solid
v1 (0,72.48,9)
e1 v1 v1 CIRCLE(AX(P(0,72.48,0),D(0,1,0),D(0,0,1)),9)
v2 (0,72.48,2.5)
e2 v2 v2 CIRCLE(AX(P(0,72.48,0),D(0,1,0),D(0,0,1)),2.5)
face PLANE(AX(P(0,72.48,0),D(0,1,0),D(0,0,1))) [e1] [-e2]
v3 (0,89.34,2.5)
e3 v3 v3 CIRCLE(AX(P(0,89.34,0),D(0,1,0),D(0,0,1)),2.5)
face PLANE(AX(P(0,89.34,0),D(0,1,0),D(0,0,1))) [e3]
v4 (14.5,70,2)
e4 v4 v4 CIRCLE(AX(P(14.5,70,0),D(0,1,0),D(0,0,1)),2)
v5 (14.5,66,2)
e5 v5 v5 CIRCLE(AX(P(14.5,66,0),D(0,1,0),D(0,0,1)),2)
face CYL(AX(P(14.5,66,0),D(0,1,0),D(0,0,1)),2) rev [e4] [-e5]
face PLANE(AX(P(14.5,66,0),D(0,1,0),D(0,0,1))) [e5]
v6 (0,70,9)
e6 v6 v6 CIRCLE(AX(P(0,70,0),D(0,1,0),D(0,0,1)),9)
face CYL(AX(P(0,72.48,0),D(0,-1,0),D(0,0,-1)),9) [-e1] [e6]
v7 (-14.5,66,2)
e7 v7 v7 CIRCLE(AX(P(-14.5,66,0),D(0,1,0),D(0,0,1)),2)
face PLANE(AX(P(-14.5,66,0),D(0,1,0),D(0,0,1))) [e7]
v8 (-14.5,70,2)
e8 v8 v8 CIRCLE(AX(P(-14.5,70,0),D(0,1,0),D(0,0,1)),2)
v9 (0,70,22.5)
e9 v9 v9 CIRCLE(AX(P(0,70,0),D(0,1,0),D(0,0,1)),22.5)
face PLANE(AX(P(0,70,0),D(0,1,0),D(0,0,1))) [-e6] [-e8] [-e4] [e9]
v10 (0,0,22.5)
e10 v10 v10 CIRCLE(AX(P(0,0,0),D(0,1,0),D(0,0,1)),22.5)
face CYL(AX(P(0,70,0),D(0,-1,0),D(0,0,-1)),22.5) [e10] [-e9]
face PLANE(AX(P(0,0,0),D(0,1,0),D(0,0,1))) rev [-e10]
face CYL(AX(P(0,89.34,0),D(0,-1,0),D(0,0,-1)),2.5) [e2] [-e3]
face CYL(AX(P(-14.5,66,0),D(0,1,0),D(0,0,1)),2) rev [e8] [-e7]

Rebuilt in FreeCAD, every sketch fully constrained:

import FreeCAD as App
import Part
import Sketcher

V = App.Vector

doc = App.newDocument("Part")
params = doc.addObject("Spreadsheet::Sheet", "Params")
for row, (alias, value) in enumerate([
    ("sketch1_diameter", "45 mm"),
    ("pad1_length", "70 mm"),
    ("sketch2_diameter", "18 mm"),
    ("pad2_length", "2.48 mm"),
    ("sketch3_diameter", "5 mm"),
    ("pad3_length", "16.86 mm"),
    ("sketch4_diameter", "4 mm"),
    ("pocket1_length", "4 mm"),
], start=1):
    params.set(f"A{row}", alias)
    params.set(f"B{row}", "=" + value)
    params.setAlias(f"B{row}", alias)

body = doc.addObject("PartDesign::Body", "Body")

sketch1 = body.newObject("Sketcher::SketchObject", "Sketch")
sketch1.AttachmentSupport = (doc.getObject("XZ_Plane"), [""])
sketch1.MapMode = "FlatFace"
sketch1.addGeometry(Part.Circle(V(0, 0, 0), V(0, 0, 1), 22), False)
sketch1.addConstraint([
    Sketcher.Constraint("Coincident", 0, 3, -1, 1),
    Sketcher.Constraint("Diameter", 0, 45.0),
])
sketch1.setExpression("Constraints[1]", "Params.sketch1_diameter")
pad1 = body.newObject("PartDesign::Pad", "Pad")
pad1.Profile = sketch1
pad1.setExpression("Length", "Params.pad1_length")
pad1.Reversed = True

sketch2 = body.newObject("Sketcher::SketchObject", "Sketch001")
sketch2.AttachmentSupport = (doc.getObject("XZ_Plane"), [""])
sketch2.MapMode = "FlatFace"
sketch2.AttachmentOffset = App.Placement(V(0, 0, -70), App.Rotation())
sketch2.addGeometry(Part.Circle(V(0, 0, 0), V(0, 0, 1), 9), False)
sketch2.addConstraint([
    Sketcher.Constraint("Coincident", 0, 3, -1, 1),
    Sketcher.Constraint("Diameter", 0, 18.0),
])
sketch2.setExpression("Constraints[1]", "Params.sketch2_diameter")
pad2 = body.newObject("PartDesign::Pad", "Pad001")
pad2.Profile = sketch2
pad2.setExpression("Length", "Params.pad2_length")
pad2.Reversed = True

sketch3 = body.newObject("Sketcher::SketchObject", "Sketch002")
sketch3.AttachmentSupport = (doc.getObject("XZ_Plane"), [""])
sketch3.MapMode = "FlatFace"
sketch3.AttachmentOffset = App.Placement(V(0, 0, -72.48), App.Rotation())
sketch3.addGeometry(Part.Circle(V(0, 0, 0), V(0, 0, 1), 2.5), False)
sketch3.addConstraint([
    Sketcher.Constraint("Coincident", 0, 3, -1, 1),
    Sketcher.Constraint("Diameter", 0, 5.0),
])
sketch3.setExpression("Constraints[1]", "Params.sketch3_diameter")
pad3 = body.newObject("PartDesign::Pad", "Pad002")
pad3.Profile = sketch3
pad3.setExpression("Length", "Params.pad3_length")
pad3.Reversed = True

sketch4 = body.newObject("Sketcher::SketchObject", "Sketch003")
sketch4.AttachmentSupport = (doc.getObject("XZ_Plane"), [""])
sketch4.MapMode = "FlatFace"
sketch4.AttachmentOffset = App.Placement(V(0, 0, -70), App.Rotation())
sketch4.addGeometry([
    Part.Circle(V(-14.5, 0, 0), V(0, 0, 1), 2),
    Part.Circle(V(14.5, 0, 0), V(0, 0, 1), 2),
], False)
sketch4.addConstraint([
    Sketcher.Constraint("Equal", 0, 1),
    Sketcher.Constraint("Symmetric", 0, 3, 1, 3, -1, 1),
    Sketcher.Constraint("PointOnObject", 0, 3, -1),
    Sketcher.Constraint("Diameter", 0, 4.0),
    Sketcher.Constraint("DistanceX", 0, 3, 1, 3, 29.0),
])
sketch4.setExpression("Constraints[3]", "Params.sketch4_diameter")
pocket1 = body.newObject("PartDesign::Pocket", "Pocket")
pocket1.Profile = sketch4
pocket1.setExpression("Length", "Params.pocket1_length")
pocket1.Reversed = True

doc.recompute()
